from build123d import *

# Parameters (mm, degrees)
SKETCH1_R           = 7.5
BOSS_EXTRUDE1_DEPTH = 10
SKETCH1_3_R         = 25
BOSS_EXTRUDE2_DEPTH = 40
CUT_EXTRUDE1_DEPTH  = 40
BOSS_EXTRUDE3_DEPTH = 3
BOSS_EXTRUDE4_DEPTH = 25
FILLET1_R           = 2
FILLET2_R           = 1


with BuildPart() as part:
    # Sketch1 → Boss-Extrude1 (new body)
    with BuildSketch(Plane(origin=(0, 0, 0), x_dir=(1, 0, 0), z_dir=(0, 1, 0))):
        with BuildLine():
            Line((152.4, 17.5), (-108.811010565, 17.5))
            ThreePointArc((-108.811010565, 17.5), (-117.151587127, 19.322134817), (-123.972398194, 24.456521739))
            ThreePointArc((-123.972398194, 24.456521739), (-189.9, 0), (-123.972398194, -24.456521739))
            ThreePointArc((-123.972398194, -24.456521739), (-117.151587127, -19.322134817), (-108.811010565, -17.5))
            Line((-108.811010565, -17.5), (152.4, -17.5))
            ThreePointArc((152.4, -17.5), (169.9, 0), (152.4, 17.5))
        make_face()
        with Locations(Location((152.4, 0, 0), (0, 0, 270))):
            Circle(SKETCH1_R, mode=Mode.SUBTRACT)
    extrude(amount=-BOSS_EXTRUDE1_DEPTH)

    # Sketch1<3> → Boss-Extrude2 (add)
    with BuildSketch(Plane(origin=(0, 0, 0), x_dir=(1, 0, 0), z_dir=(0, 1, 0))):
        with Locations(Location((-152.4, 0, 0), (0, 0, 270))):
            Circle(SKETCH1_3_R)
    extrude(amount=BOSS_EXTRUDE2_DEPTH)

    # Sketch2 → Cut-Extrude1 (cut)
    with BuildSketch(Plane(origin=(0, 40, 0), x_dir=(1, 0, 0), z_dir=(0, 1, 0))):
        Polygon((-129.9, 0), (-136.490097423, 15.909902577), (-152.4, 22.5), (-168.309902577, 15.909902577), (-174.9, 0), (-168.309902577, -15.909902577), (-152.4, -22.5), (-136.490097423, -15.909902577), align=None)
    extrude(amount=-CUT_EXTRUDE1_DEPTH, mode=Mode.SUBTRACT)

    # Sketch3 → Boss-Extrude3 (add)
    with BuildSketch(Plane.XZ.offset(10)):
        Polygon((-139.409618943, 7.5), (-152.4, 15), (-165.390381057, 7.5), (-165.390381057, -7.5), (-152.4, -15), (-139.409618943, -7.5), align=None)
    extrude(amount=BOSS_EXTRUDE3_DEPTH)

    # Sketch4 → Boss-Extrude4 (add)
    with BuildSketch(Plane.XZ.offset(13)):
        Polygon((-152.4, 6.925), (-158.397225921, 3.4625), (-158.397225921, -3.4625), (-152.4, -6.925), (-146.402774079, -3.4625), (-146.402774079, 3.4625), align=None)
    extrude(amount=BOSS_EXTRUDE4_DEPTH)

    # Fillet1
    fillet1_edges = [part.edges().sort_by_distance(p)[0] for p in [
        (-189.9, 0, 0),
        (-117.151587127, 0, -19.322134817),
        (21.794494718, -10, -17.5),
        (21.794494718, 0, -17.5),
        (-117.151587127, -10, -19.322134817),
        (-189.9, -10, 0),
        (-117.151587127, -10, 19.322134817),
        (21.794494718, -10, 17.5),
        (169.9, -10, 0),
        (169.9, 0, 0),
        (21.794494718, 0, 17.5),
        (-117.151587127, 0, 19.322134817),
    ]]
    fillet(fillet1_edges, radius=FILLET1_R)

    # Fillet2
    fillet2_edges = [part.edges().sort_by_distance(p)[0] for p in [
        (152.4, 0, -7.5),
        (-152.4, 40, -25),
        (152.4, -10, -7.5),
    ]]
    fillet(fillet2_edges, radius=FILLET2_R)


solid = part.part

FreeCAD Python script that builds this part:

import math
import FreeCAD as App
import Part
import Sketcher

V = App.Vector
Q = App.Units.Quantity


def edges_at(feature, points):
    """Names of the edges that pass closest to the given points."""
    edges = feature.Shape.Edges
    near = lambda p: min(range(len(edges)), key=lambda i: edges[i].distToShape(Part.Vertex(*p))[0])
    return sorted({f"Edge{near(p) + 1}" for p in points})

doc = App.newDocument("Part")
body = doc.addObject("PartDesign::Body", "Body")

sketch1 = doc.addObject("Sketcher::SketchObject", "Sketch")
body.addObject(sketch1)
sketch1.AttachmentSupport = (doc.XZ_Plane, [""])
sketch1.MapMode = "FlatFace"
sketch1.addGeometry([
    Part.LineSegment(V(152.4, -17.5, 0), V(-108.811011, -17.5, 0)),
    Part.ArcOfCircle(Part.Circle(V(-108.811011, -37.5, 0), V(0, 0, 1), 20), math.radians(90), math.radians(139.294293)),
    Part.ArcOfCircle(Part.Circle(V(-152.4, 0, 0), V(0, 0, 1), 37.5), math.radians(40.705707), math.radians(319.294293)),
    Part.ArcOfCircle(Part.Circle(V(-108.811011, 37.5, 0), V(0, 0, 1), 20), math.radians(-139.294293), math.radians(-90)),
    Part.LineSegment(V(-108.811011, 17.5, 0), V(152.4, 17.5, 0)),
    Part.ArcOfCircle(Part.Circle(V(152.4, 0, 0), V(0, 0, 1), 17.5), math.radians(-90), math.radians(90)),
    Part.Circle(V(152.4, 0, 0), V(0, 0, 1), 7.5),
], False)
sketch1.addConstraint([
    Sketcher.Constraint("Tangent", 0, 2, 1, 1),
    Sketcher.Constraint("Tangent", 1, 2, 2, 2),
    Sketcher.Constraint("Tangent", 2, 1, 3, 1),
    Sketcher.Constraint("Tangent", 3, 2, 4, 1),
    Sketcher.Constraint("Tangent", 4, 2, 5, 2),
    Sketcher.Constraint("Tangent", 5, 1, 0, 1),
    Sketcher.Constraint("Horizontal", 0),
    Sketcher.Constraint("Horizontal", 4),
    Sketcher.Constraint("Coincident", 6, 3, 5, 3),
    Sketcher.Constraint("Equal", 1, 3),
    Sketcher.Constraint("Symmetric", 2, 3, 5, 3, -1, 1),
    Sketcher.Constraint("PointOnObject", 2, 3, -1),
    Sketcher.Constraint("Diameter", 6, Q("15 mm")),
    Sketcher.Constraint("Radius", 1, Q("20 mm")),
    Sketcher.Constraint("Radius", 2, Q("37.5 mm")),
    Sketcher.Constraint("Radius", 5, Q("17.5 mm")),
    Sketcher.Constraint("DistanceX", 2, 3, -1, 1, Q("152.4 mm")),
])
pad1 = doc.addObject("PartDesign::Pad", "Pad")
body.addObject(pad1)
pad1.Profile = sketch1
pad1.Length = 10

sketch2 = doc.addObject("Sketcher::SketchObject", "Sketch001")
body.addObject(sketch2)
sketch2.AttachmentSupport = (doc.XZ_Plane, [""])
sketch2.MapMode = "FlatFace"
sketch2.addGeometry(Part.Circle(V(-152.4, 0, 0), V(0, 0, 1), 25), False)
sketch2.addConstraint([
    Sketcher.Constraint("PointOnObject", 0, 3, -1),
    Sketcher.Constraint("Diameter", 0, Q("50 mm")),
    Sketcher.Constraint("DistanceX", 0, 3, -1, 1, Q("152.4 mm")),
])
pad2 = doc.addObject("PartDesign::Pad", "Pad001")
body.addObject(pad2)
pad2.Profile = sketch2
pad2.Length = 40
pad2.Reversed = True

sketch3 = doc.addObject("Sketcher::SketchObject", "Sketch002")
body.addObject(sketch3)
sketch3.AttachmentSupport = (doc.XZ_Plane, [""])
sketch3.MapMode = "FlatFace"
sketch3.AttachmentOffset = App.Placement(V(0, 0, -40), App.Rotation())
sketch3.addGeometry([
    Part.LineSegment(V(-129.9, 0, 0), V(-136.490097, -15.909903, 0)),
    Part.LineSegment(V(-136.490097, -15.909903, 0), V(-152.4, -22.5, 0)),
    Part.LineSegment(V(-152.4, -22.5, 0), V(-168.309903, -15.909903, 0)),
    Part.LineSegment(V(-168.309903, -15.909903, 0), V(-174.9, 0, 0)),
    Part.LineSegment(V(-174.9, 0, 0), V(-168.309903, 15.909903, 0)),
    Part.LineSegment(V(-168.309903, 15.909903, 0), V(-152.4, 22.5, 0)),
    Part.LineSegment(V(-152.4, 22.5, 0), V(-136.490097, 15.909903, 0)),
    Part.LineSegment(V(-136.490097, 15.909903, 0), V(-129.9, 0, 0)),
], False)
sketch3.addConstraint([
    Sketcher.Constraint("Coincident", 0, 2, 1, 1),
    Sketcher.Constraint("Coincident", 1, 2, 2, 1),
    Sketcher.Constraint("Coincident", 2, 2, 3, 1),
    Sketcher.Constraint("Coincident", 3, 2, 4, 1),
    Sketcher.Constraint("Coincident", 4, 2, 5, 1),
    Sketcher.Constraint("Coincident", 5, 2, 6, 1),
    Sketcher.Constraint("Coincident", 6, 2, 7, 1),
    Sketcher.Constraint("Coincident", 7, 2, 0, 1),
    Sketcher.Constraint("Symmetric", 2, 2, 4, 2, -1),
    Sketcher.Constraint("Symmetric", 1, 2, 5, 2, -1),
    Sketcher.Constraint("Symmetric", 0, 2, 6, 2, -1),
    Sketcher.Constraint("PointOnObject", 3, 2, -1),
    Sketcher.Constraint("PointOnObject", 7, 2, -1),
    Sketcher.Constraint("Perpendicular", 0, 2),
    Sketcher.Constraint("Perpendicular", 1, 3),
    Sketcher.Constraint("Perpendicular", 2, 4),
    Sketcher.Constraint("Horizontal", 0, 2, 2, 2),
    Sketcher.Constraint("Equal", 0, 1),
    Sketcher.Constraint("Angle", 0, Q("-112.5 deg")),
    Sketcher.Constraint("DistanceY", 1, 2, 5, 2, Q("45 mm")),
    Sketcher.Constraint("DistanceX", 1, 2, -1, 1, Q("152.4 mm")),
])
pocket1 = doc.addObject("PartDesign::Pocket", "Pocket")
body.addObject(pocket1)
pocket1.Profile = sketch3
pocket1.Length = 40
pocket1.Reversed = True

sketch4 = doc.addObject("Sketcher::SketchObject", "Sketch003")
body.addObject(sketch4)
sketch4.AttachmentSupport = (doc.XZ_Plane, [""])
sketch4.MapMode = "FlatFace"
sketch4.AttachmentOffset = App.Placement(V(0, 0, 10), App.Rotation())
sketch4.addGeometry([
    Part.LineSegment(V(-139.409619, 7.5, 0), V(-152.4, 15, 0)),
    Part.LineSegment(V(-152.4, 15, 0), V(-165.390381, 7.5, 0)),
    Part.LineSegment(V(-165.390381, 7.5, 0), V(-165.390381, -7.5, 0)),
    Part.LineSegment(V(-165.390381, -7.5, 0), V(-152.4, -15, 0)),
    Part.LineSegment(V(-152.4, -15, 0), V(-139.409619, -7.5, 0)),
    Part.LineSegment(V(-139.409619, -7.5, 0), V(-139.409619, 7.5, 0)),
], False)
sketch4.addConstraint([
    Sketcher.Constraint("Coincident", 0, 2, 1, 1),
    Sketcher.Constraint("Coincident", 1, 2, 2, 1),
    Sketcher.Constraint("Coincident", 2, 2, 3, 1),
    Sketcher.Constraint("Coincident", 3, 2, 4, 1),
    Sketcher.Constraint("Coincident", 4, 2, 5, 1),
    Sketcher.Constraint("Coincident", 5, 2, 0, 1),
    Sketcher.Constraint("Vertical", 2),
    Sketcher.Constraint("Vertical", 5),
    Sketcher.Constraint("Symmetric", 0, 2, 3, 2, -1),
    Sketcher.Constraint("Parallel", 0, 3),
    Sketcher.Constraint("Parallel", 1, 4),
    Sketcher.Constraint("Horizontal", 2, 2, 4, 2),
    Sketcher.Constraint("Horizontal", 1, 2, 5, 2),
    Sketcher.Constraint("DistanceY", 2, 2, 2, 1, Q("15 mm")),
    Sketcher.Constraint("Angle", 0, Q("150 deg")),
    Sketcher.Constraint("Distance", 0, Q("15 mm")),
    Sketcher.Constraint("DistanceX", 0, 2, -1, 1, Q("152.4 mm")),
])
pad3 = doc.addObject("PartDesign::Pad", "Pad002")
body.addObject(pad3)
pad3.Profile = sketch4
pad3.Length = 3

sketch5 = doc.addObject("Sketcher::SketchObject", "Sketch004")
body.addObject(sketch5)
sketch5.AttachmentSupport = (doc.XZ_Plane, [""])
sketch5.MapMode = "FlatFace"
sketch5.AttachmentOffset = App.Placement(V(0, 0, 13), App.Rotation())
sketch5.addGeometry([
    Part.LineSegment(V(-152.4, 6.925, 0), V(-158.397226, 3.4625, 0)),
    Part.LineSegment(V(-158.397226, 3.4625, 0), V(-158.397226, -3.4625, 0)),
    Part.LineSegment(V(-158.397226, -3.4625, 0), V(-152.4, -6.925, 0)),
    Part.LineSegment(V(-152.4, -6.925, 0), V(-146.402774, -3.4625, 0)),
    Part.LineSegment(V(-146.402774, -3.4625, 0), V(-146.402774, 3.4625, 0)),
    Part.LineSegment(V(-146.402774, 3.4625, 0), V(-152.4, 6.925, 0)),
], False)
sketch5.addConstraint([
    Sketcher.Constraint("Coincident", 0, 2, 1, 1),
    Sketcher.Constraint("Coincident", 1, 2, 2, 1),
    Sketcher.Constraint("Coincident", 2, 2, 3, 1),
    Sketcher.Constraint("Coincident", 3, 2, 4, 1),
    Sketcher.Constraint("Coincident", 4, 2, 5, 1),
    Sketcher.Constraint("Coincident", 5, 2, 0, 1),
    Sketcher.Constraint("Vertical", 1),
    Sketcher.Constraint("Vertical", 4),
    Sketcher.Constraint("Symmetric", 2, 2, 5, 2, -1),
    Sketcher.Constraint("Parallel", 0, 3),
    Sketcher.Constraint("Parallel", 2, 5),
    Sketcher.Constraint("Horizontal", 1, 2, 3, 2),
    Sketcher.Constraint("Horizontal", 0, 2, 4, 2),
    Sketcher.Constraint("Angle", 0, Q("-150 deg")),
    Sketcher.Constraint("DistanceX", 2, 2, -1, 1, Q("152.4 mm")),
    Sketcher.Constraint("DistanceY", 1, 2, 1, 1, Q("6.925 mm")),
    Sketcher.Constraint("DistanceY", 2, 2, 5, 2, Q("13.85 mm")),
])
pad4 = doc.addObject("PartDesign::Pad", "Pad003")
body.addObject(pad4)
pad4.Profile = sketch5
pad4.Length = 25
doc.recompute()

fillet = doc.addObject("PartDesign::Fillet", "Fillet")
body.addObject(fillet)
fillet.Base = (pad4, edges_at(pad4, [
    (-189.9, 0, 0),
    (-117.152, 0, -19.322),
    (21.794, -10, -17.5),
    (21.794, 0, -17.5),
    (-117.152, -10, -19.322),
    (-189.9, -10, 0),
    (-117.152, -10, 19.322),
    (21.794, -10, 17.5),
    (169.9, -10, 0),
    (169.9, 0, 0),
    (21.794, 0, 17.5),
    (-117.152, 0, 19.322),
]))
fillet.Radius = 2
doc.recompute()

fillet2 = doc.addObject("PartDesign::Fillet", "Fillet001")
body.addObject(fillet2)
fillet2.Base = (fillet, edges_at(fillet, [(152.4, 0, -7.5), (-152.4, 40, -25), (152.4, -10, -7.5)]))
fillet2.Radius = 1

doc.recompute()
